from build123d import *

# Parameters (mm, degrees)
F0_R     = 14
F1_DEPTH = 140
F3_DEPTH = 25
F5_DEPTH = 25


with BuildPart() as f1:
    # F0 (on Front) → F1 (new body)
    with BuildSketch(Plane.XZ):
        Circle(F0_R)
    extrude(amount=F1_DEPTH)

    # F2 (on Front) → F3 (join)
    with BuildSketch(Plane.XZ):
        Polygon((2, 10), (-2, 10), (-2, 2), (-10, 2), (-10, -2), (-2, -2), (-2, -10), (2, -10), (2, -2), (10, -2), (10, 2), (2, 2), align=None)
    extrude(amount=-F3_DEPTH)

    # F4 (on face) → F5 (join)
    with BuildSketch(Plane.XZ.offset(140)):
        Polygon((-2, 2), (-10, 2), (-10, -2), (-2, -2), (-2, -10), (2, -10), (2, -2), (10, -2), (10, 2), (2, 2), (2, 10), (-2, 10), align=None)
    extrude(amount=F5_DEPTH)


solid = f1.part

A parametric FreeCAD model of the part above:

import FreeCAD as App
import Part
import Sketcher
Q = App.Units.Quantity


def add_polygon(sketch, points):
    """Adds a closed chain of lines whose ends are joined by coincident constraints."""
    first, n = sketch.GeometryCount, len(points)
    for a, b in zip(points, points[1:] + points[:1]):
        sketch.addGeometry(Part.LineSegment(App.Vector(*a, 0), App.Vector(*b, 0)), False)
    for i in range(n):
        sketch.addConstraint(Sketcher.Constraint("Coincident", first + i, 2, first + (i + 1) % n, 1))

doc = App.newDocument("Part")
body = doc.addObject("PartDesign::Body", "Body")

# Sketch on XZ plane
sketch1 = body.newObject("Sketcher::SketchObject", "Sketch")
sketch1.AttachmentSupport = (doc.getObject("XZ_Plane"), [""])
sketch1.MapMode = "FlatFace"
sketch1.addGeometry(Part.Circle(App.Vector(0, 0, 0), App.Vector(0, 0, 1), 14), False)
sketch1.addConstraint([
    Sketcher.Constraint("Coincident", 0, 3, -1, 1),
    Sketcher.Constraint("Diameter", 0, Q("28 mm")),
])
pad1 = body.newObject("PartDesign::Pad", "Pad")
pad1.Profile = sketch1
pad1.Length = 140

# Sketch on XZ plane
sketch2 = body.newObject("Sketcher::SketchObject", "Sketch001")
sketch2.AttachmentSupport = (doc.getObject("XZ_Plane"), [""])
sketch2.MapMode = "FlatFace"
add_polygon(sketch2, [(2, 10), (-2, 10), (-2, 2), (-10, 2), (-10, -2), (-2, -2), (-2, -10), (2, -10), (2, -2), (10, -2), (10, 2), (2, 2)])  # lines 0-11
sketch2.addConstraint([
    Sketcher.Constraint("Horizontal", 0),
    Sketcher.Constraint("Vertical", 1),
    Sketcher.Constraint("Horizontal", 2),
    Sketcher.Constraint("Vertical", 3),
    Sketcher.Constraint("Horizontal", 4),
    Sketcher.Constraint("Vertical", 5),
    Sketcher.Constraint("Horizontal", 6),
    Sketcher.Constraint("Vertical", 7),
    Sketcher.Constraint("Horizontal", 8),
    Sketcher.Constraint("Vertical", 9),
    Sketcher.Constraint("Horizontal", 10),
    Sketcher.Constraint("Vertical", 11),
    Sketcher.Constraint("Symmetric", 0, 2, 6, 2, -1, 1),
    Sketcher.Constraint("Symmetric", 2, 2, 8, 2, -1, 1),
    Sketcher.Constraint("Symmetric", 4, 2, 10, 2, -1, 1),
    Sketcher.Constraint("Symmetric", 4, 2, 7, 2, -2),
    Sketcher.Constraint("Equal", 10, 1),
    Sketcher.Constraint("Equal", 6, 3),
    Sketcher.Constraint("DistanceX", 0, 2, 0, 1, Q("4 mm")),
    Sketcher.Constraint("DistanceX", 2, 2, 2, 1, Q("8 mm")),
])
pad2 = body.newObject("PartDesign::Pad", "Pad001")
pad2.Profile = sketch2
pad2.Length = 25
pad2.Reversed = True

# Sketch on XZ plane
sketch3 = body.newObject("Sketcher::SketchObject", "Sketch002")
sketch3.AttachmentSupport = (doc.getObject("XZ_Plane"), [""])
sketch3.MapMode = "FlatFace"
sketch3.AttachmentOffset = App.Placement(App.Vector(0, 0, 140), App.Rotation())
add_polygon(sketch3, [(-2, 2), (-10, 2), (-10, -2), (-2, -2), (-2, -10), (2, -10), (2, -2), (10, -2), (10, 2), (2, 2), (2, 10), (-2, 10)])  # lines 0-11
sketch3.addConstraint([
    Sketcher.Constraint("Horizontal", 0),
    Sketcher.Constraint("Vertical", 1),
    Sketcher.Constraint("Horizontal", 2),
    Sketcher.Constraint("Vertical", 3),
    Sketcher.Constraint("Horizontal", 4),
    Sketcher.Constraint("Vertical", 5),
    Sketcher.Constraint("Horizontal", 6),
    Sketcher.Constraint("Vertical", 7),
    Sketcher.Constraint("Horizontal", 8),
    Sketcher.Constraint("Vertical", 9),
    Sketcher.Constraint("Horizontal", 10),
    Sketcher.Constraint("Vertical", 11),
    Sketcher.Constraint("Symmetric", 0, 2, 6, 2, -1, 1),
    Sketcher.Constraint("Symmetric", 2, 2, 8, 2, -1, 1),
    Sketcher.Constraint("Symmetric", 4, 2, 10, 2, -1, 1),
    Sketcher.Constraint("Symmetric", 2, 2, 5, 2, -2),
    Sketcher.Constraint("Equal", 10, 1),
    Sketcher.Constraint("Equal", 8, 3),
    Sketcher.Constraint("DistanceX", 0, 2, 0, 1, Q("8 mm")),
    Sketcher.Constraint("DistanceX", 4, 1, 4, 2, Q("4 mm")),
])
pad3 = body.newObject("PartDesign::Pad", "Pad002")
pad3.Profile = sketch3
pad3.Length = 25

doc.recompute()
